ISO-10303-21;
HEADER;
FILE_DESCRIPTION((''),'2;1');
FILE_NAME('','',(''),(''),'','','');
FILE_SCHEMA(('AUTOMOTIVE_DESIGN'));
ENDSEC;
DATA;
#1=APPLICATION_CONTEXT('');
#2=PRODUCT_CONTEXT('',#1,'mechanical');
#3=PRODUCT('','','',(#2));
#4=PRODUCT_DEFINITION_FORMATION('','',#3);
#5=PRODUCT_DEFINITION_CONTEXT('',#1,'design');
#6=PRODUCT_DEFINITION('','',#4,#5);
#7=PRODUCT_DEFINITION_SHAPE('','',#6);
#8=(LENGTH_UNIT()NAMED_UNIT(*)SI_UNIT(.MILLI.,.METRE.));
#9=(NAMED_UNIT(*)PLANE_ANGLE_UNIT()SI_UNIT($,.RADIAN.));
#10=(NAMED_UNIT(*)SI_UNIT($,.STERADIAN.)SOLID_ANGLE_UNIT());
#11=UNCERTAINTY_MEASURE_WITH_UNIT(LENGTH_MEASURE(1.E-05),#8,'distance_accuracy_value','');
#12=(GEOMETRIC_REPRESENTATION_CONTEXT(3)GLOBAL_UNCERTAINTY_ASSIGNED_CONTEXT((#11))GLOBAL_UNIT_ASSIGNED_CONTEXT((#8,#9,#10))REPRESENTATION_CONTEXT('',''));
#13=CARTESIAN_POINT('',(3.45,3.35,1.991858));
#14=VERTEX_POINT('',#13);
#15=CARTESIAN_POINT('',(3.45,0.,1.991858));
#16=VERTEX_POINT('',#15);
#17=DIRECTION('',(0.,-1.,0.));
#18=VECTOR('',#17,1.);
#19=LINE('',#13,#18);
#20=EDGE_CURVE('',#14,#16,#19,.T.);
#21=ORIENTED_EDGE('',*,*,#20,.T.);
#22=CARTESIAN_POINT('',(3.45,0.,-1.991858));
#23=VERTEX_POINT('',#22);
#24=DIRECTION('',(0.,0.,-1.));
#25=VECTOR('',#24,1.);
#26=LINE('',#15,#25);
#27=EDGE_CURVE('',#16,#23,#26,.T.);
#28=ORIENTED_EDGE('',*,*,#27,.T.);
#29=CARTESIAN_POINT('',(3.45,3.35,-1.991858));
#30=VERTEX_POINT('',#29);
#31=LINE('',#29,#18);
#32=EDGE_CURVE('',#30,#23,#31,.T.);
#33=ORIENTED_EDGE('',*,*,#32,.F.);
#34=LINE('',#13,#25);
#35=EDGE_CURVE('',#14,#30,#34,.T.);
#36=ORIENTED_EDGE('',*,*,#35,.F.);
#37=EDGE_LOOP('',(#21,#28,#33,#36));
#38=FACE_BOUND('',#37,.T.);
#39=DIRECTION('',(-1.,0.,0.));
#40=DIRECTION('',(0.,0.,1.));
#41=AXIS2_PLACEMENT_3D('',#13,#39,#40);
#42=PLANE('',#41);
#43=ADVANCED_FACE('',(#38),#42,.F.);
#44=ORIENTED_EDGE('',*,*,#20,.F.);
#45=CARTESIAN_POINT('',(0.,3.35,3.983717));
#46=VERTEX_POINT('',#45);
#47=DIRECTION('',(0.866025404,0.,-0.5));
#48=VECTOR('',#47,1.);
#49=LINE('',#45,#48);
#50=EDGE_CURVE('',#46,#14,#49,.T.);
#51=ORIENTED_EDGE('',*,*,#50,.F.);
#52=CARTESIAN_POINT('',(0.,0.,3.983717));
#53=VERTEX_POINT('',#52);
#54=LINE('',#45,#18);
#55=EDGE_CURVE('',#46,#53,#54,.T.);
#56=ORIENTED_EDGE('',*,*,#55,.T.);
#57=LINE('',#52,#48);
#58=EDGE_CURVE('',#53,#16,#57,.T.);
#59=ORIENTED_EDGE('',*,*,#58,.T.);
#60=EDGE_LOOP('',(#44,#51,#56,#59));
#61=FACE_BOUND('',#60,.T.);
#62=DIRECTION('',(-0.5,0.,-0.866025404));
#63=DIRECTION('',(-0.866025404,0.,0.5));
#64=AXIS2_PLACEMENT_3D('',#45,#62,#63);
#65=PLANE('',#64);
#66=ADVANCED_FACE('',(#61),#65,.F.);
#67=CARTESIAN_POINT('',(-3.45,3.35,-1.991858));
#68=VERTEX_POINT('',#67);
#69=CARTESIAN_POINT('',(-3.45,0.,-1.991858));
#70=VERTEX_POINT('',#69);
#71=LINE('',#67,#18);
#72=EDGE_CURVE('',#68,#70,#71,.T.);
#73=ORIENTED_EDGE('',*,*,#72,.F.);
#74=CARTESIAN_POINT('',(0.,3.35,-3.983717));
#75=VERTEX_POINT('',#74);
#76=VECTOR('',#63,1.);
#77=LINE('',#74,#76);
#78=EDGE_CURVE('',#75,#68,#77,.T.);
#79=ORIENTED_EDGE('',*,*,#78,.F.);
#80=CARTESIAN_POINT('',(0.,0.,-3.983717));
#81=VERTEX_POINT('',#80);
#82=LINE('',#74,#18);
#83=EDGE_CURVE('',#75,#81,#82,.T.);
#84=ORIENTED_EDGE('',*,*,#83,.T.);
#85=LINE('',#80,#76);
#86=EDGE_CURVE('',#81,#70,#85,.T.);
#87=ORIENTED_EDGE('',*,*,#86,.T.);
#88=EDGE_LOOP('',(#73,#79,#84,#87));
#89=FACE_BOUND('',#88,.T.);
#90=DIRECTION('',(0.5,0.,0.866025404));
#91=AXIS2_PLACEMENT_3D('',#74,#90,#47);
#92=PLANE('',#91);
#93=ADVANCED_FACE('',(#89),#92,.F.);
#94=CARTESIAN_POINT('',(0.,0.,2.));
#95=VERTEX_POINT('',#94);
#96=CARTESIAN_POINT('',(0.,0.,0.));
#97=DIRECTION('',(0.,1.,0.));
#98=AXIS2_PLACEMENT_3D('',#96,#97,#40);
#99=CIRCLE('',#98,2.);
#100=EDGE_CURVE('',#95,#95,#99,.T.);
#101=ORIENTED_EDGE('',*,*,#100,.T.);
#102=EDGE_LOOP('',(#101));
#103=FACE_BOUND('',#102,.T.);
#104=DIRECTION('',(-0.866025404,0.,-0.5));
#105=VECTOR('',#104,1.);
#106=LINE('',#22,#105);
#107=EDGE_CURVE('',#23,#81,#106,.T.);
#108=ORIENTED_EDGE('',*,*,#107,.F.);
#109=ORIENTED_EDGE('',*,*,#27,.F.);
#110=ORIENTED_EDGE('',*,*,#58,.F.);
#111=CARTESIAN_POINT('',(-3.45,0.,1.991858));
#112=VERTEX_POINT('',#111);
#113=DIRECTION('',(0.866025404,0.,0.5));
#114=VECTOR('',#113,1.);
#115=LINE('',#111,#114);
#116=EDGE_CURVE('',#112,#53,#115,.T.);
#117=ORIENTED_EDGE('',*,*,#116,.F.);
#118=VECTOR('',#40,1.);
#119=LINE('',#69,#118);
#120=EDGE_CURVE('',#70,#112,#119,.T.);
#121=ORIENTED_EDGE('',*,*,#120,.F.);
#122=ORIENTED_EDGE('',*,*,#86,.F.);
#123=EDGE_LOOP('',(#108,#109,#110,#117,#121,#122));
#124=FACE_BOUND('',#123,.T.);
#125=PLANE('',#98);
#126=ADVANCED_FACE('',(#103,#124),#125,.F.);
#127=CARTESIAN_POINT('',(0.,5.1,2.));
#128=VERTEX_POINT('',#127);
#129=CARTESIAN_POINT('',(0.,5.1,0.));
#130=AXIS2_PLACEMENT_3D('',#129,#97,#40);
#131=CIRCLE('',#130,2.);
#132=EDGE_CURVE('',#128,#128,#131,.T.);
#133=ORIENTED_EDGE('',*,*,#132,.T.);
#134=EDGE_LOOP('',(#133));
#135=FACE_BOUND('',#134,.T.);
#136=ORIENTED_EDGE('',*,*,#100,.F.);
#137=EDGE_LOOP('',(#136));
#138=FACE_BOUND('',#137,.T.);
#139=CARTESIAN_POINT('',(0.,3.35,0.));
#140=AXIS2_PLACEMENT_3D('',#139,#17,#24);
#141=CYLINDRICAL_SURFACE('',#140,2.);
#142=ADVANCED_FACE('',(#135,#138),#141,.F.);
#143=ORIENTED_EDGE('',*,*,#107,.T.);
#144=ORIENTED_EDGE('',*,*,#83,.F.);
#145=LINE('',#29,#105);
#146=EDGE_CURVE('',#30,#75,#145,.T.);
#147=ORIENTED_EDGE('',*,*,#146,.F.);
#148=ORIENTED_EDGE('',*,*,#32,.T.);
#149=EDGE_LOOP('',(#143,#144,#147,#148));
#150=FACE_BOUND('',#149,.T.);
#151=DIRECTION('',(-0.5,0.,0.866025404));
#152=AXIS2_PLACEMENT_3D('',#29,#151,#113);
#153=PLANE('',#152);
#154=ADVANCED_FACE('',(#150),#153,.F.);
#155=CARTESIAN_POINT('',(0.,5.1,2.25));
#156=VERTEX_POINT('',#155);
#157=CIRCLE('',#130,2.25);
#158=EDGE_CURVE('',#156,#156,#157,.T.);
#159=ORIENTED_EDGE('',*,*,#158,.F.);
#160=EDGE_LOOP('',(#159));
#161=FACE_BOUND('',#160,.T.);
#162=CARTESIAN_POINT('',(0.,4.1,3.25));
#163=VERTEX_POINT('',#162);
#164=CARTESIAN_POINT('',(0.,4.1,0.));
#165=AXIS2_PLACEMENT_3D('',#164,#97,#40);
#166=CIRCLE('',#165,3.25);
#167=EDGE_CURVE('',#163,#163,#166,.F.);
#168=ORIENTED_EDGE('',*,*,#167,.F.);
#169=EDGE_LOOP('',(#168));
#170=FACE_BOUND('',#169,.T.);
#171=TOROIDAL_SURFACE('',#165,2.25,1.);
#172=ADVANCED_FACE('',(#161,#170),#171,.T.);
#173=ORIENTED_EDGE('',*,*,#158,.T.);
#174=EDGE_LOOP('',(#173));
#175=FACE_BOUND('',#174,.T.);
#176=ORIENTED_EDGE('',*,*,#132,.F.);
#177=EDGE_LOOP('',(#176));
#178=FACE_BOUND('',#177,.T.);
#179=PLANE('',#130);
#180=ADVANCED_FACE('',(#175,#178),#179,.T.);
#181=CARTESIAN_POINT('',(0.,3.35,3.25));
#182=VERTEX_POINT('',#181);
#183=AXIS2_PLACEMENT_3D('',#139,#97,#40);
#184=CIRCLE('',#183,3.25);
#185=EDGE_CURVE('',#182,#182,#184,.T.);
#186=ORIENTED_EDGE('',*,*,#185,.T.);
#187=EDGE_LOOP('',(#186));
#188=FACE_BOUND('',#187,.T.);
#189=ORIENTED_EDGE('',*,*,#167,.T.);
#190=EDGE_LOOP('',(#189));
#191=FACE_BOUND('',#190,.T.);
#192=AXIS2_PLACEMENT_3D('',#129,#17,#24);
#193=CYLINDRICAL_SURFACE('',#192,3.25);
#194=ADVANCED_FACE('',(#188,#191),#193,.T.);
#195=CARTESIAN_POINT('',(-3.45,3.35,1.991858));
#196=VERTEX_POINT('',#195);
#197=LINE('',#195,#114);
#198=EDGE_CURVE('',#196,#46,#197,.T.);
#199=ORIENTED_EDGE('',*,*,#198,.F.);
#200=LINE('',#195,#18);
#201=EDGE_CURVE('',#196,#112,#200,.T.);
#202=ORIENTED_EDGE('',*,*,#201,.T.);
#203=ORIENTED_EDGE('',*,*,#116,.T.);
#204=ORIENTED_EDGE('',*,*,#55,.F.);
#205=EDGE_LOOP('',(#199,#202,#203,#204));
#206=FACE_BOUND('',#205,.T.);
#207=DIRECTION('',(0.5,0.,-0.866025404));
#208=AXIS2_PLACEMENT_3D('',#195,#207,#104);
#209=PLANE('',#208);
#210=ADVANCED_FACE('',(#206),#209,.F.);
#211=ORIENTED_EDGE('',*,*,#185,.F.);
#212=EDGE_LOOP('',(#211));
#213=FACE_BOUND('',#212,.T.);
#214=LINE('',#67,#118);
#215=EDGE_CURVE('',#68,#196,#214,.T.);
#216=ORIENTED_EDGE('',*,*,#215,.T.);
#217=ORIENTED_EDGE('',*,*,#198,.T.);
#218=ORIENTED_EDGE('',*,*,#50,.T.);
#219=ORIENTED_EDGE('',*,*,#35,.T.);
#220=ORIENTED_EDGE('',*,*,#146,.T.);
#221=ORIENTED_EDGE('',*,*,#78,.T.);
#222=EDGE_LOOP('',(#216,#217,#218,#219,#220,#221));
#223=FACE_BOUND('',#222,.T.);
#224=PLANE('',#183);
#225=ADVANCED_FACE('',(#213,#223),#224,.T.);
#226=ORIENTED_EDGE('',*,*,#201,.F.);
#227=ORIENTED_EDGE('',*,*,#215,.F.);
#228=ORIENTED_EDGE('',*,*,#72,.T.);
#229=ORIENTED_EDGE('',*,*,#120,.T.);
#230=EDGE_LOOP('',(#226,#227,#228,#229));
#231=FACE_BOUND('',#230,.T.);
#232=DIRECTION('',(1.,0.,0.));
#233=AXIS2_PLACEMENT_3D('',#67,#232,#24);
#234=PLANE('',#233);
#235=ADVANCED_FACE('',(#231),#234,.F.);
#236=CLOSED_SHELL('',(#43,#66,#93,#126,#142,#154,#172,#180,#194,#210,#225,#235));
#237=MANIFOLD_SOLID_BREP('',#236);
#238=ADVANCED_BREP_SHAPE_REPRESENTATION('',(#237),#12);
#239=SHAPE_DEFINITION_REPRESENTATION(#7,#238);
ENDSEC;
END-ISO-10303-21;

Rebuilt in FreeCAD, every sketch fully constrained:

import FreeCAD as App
import Part
import Sketcher

V = App.Vector
Q = App.Units.Quantity


def edges_at(feature, points):
    """Names of the edges that pass closest to the given points."""
    edges = feature.Shape.Edges
    near = lambda p: min(range(len(edges)), key=lambda i: edges[i].distToShape(Part.Vertex(*p))[0])
    return sorted({f"Edge{near(p) + 1}" for p in points})

doc = App.newDocument("Part")
body = doc.addObject("PartDesign::Body", "Body")

# Sketch on XZ plane
sketch1 = body.newObject("Sketcher::SketchObject", "Sketch")
sketch1.AttachmentSupport = (doc.getObject("XZ_Plane"), [""])
sketch1.MapMode = "FlatFace"
sketch1.addGeometry([
    Part.LineSegment(V(0, -4, 0), V(-3.5, -2, 0)),  # 0
    Part.LineSegment(V(-3.5, -2, 0), V(-3.5, 2, 0)),  # 1
    Part.LineSegment(V(-3.5, 2, 0), V(0, 4, 0)),  # 2
    Part.LineSegment(V(0, 4, 0), V(3.5, 2, 0)),  # 3
    Part.LineSegment(V(3.5, 2, 0), V(3.5, -2, 0)),  # 4
    Part.LineSegment(V(3.5, -2, 0), V(0, -4, 0)),  # 5
    Part.Circle(V(0, 0, 0), V(0, 0, 1), 2),  # 6
], False)
sketch1.addConstraint([
    Sketcher.Constraint("Coincident", 0, 2, 1, 1),
    Sketcher.Constraint("Coincident", 1, 2, 2, 1),
    Sketcher.Constraint("Coincident", 2, 2, 3, 1),
    Sketcher.Constraint("Coincident", 3, 2, 4, 1),
    Sketcher.Constraint("Coincident", 4, 2, 5, 1),
    Sketcher.Constraint("Coincident", 5, 2, 0, 1),
    Sketcher.Constraint("Vertical", 1),
    Sketcher.Constraint("Vertical", 4),
    Sketcher.Constraint("Coincident", 6, 3, -1, 1),
    Sketcher.Constraint("Symmetric", 0, 2, 3, 2, -1, 1),
    Sketcher.Constraint("Symmetric", 2, 2, 5, 2, -1, 1),
    Sketcher.Constraint("PointOnObject", 2, 2, -2),
    Sketcher.Constraint("Parallel", 2, 5),
    Sketcher.Constraint("Horizontal", 1, 2, 3, 2),
    Sketcher.Constraint("Diameter", 6, Q("4 mm")),
    Sketcher.Constraint("Angle", 0, Q("150 deg")),
    Sketcher.Constraint("DistanceX", 1, 2, 3, 2, Q("6.9 mm")),
    Sketcher.Constraint("DistanceY", 1, 1, 1, 2, Q("3.983717 mm")),
])
pad1 = body.newObject("PartDesign::Pad", "Pad")
pad1.Profile = sketch1
pad1.Length = 3.35
pad1.Reversed = True

# Sketch on XZ plane
sketch2 = body.newObject("Sketcher::SketchObject", "Sketch001")
sketch2.AttachmentSupport = (doc.getObject("XZ_Plane"), [""])
sketch2.MapMode = "FlatFace"
sketch2.AttachmentOffset = App.Placement(V(0, 0, -3.35), App.Rotation())
sketch2.addGeometry([
    Part.Circle(V(0, 0, 0), V(0, 0, 1), 3.2),
    Part.Circle(V(0, 0, 0), V(0, 0, 1), 2),
], False)
sketch2.addConstraint([
    Sketcher.Constraint("Coincident", 0, 3, -1, 1),
    Sketcher.Constraint("Coincident", 1, 3, -1, 1),
    Sketcher.Constraint("Diameter", 1, Q("4 mm")),
    Sketcher.Constraint("Diameter", 0, Q("6.5 mm")),
])
pad2 = body.newObject("PartDesign::Pad", "Pad001")
pad2.Profile = sketch2
pad2.Length = 1.75
pad2.Reversed = True
doc.recompute()

fillet = body.newObject("PartDesign::Fillet", "Fillet")
fillet.Base = (pad2, edges_at(pad2, [(-3.25, 5.1, 0)]))
fillet.Radius = 1

doc.recompute()
